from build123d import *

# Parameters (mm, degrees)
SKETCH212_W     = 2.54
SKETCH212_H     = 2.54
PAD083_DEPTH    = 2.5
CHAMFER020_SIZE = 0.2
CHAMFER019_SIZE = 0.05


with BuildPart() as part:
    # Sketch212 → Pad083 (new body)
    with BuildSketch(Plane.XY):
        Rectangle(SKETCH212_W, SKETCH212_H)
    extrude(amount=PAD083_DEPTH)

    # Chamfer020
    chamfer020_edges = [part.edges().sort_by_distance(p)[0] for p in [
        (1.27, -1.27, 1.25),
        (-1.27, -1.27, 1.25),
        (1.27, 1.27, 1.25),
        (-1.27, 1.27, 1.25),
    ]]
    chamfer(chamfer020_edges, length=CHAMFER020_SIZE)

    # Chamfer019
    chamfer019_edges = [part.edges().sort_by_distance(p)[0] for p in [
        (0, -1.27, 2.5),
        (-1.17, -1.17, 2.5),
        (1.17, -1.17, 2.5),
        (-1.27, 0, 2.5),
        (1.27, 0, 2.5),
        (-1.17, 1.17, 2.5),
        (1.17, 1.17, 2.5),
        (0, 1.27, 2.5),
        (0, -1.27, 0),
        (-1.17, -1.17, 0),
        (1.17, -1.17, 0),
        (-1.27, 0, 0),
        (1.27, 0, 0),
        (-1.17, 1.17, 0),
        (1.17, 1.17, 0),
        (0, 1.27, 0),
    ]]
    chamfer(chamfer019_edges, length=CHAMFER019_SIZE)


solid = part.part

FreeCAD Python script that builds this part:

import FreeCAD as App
import Part
import Sketcher
from FreeCAD import Vector
Q = App.Units.Quantity


def edges_at(feature, points):
    """Names of the edges that pass closest to the given points."""
    edges = feature.Shape.Edges
    near = lambda p: min(range(len(edges)), key=lambda i: edges[i].distToShape(Part.Vertex(*p))[0])
    return sorted({f"Edge{near(p) + 1}" for p in points})


def add_polygon(sketch, points):
    """Adds a closed chain of lines whose ends are joined by coincident constraints."""
    first, n = sketch.GeometryCount, len(points)
    for a, b in zip(points, points[1:] + points[:1]):
        sketch.addGeometry(Part.LineSegment(App.Vector(*a, 0), App.Vector(*b, 0)), False)
    for i in range(n):
        sketch.addConstraint(Sketcher.Constraint("Coincident", first + i, 2, first + (i + 1) % n, 1))

doc = App.newDocument("Part")
body = doc.addObject("PartDesign::Body", "Body")

# Sketch on XY plane
sketch1 = body.newObject("Sketcher::SketchObject", "Sketch")
sketch1.AttachmentSupport = (doc.getObject("XY_Plane"), [""])
sketch1.MapMode = "FlatFace"
add_polygon(sketch1, [(-1.3, 1.3), (-1.3, -1.3), (1.3, -1.3), (1.3, 1.3)])  # lines 0-3
sketch1.addConstraint([
    Sketcher.Constraint("Vertical", 0),
    Sketcher.Constraint("Horizontal", 1),
    Sketcher.Constraint("Vertical", 2),
    Sketcher.Constraint("Horizontal", 3),
    Sketcher.Constraint("Symmetric", 0, 2, 2, 2, -1, 1),
    Sketcher.Constraint("Equal", 3, 0),
    Sketcher.Constraint("DistanceX", 1, 1, 1, 2, Q("2.54 mm")),
])
pad1 = body.newObject("PartDesign::Pad", "Pad")
pad1.Profile = sketch1
pad1.Length = 2.5
doc.recompute()

chamfer = body.newObject("PartDesign::Chamfer", "Chamfer")
chamfer.Base = (pad1, edges_at(pad1, [
    (1.27, -1.27, 1.25),
    (-1.27, -1.27, 1.25),
    (1.27, 1.27, 1.25),
    (-1.27, 1.27, 1.25),
]))
chamfer.Size = 0.2
doc.recompute()

chamfer2 = body.newObject("PartDesign::Chamfer", "Chamfer001")
chamfer2.Base = (chamfer, edges_at(chamfer, [
    (0, -1.27, 2.5),
    (-1.17, -1.17, 2.5),
    (1.17, -1.17, 2.5),
    (-1.27, 0, 2.5),
    (1.27, 0, 2.5),
    (-1.17, 1.17, 2.5),
    (1.17, 1.17, 2.5),
    (0, 1.27, 2.5),
    (0, -1.27, 0),
    (-1.17, -1.17, 0),
    (1.17, -1.17, 0),
    (-1.27, 0, 0),
    (1.27, 0, 0),
    (-1.17, 1.17, 0),
    (1.17, 1.17, 0),
    (0, 1.27, 0),
]))
chamfer2.Size = 0.05

doc.recompute()
